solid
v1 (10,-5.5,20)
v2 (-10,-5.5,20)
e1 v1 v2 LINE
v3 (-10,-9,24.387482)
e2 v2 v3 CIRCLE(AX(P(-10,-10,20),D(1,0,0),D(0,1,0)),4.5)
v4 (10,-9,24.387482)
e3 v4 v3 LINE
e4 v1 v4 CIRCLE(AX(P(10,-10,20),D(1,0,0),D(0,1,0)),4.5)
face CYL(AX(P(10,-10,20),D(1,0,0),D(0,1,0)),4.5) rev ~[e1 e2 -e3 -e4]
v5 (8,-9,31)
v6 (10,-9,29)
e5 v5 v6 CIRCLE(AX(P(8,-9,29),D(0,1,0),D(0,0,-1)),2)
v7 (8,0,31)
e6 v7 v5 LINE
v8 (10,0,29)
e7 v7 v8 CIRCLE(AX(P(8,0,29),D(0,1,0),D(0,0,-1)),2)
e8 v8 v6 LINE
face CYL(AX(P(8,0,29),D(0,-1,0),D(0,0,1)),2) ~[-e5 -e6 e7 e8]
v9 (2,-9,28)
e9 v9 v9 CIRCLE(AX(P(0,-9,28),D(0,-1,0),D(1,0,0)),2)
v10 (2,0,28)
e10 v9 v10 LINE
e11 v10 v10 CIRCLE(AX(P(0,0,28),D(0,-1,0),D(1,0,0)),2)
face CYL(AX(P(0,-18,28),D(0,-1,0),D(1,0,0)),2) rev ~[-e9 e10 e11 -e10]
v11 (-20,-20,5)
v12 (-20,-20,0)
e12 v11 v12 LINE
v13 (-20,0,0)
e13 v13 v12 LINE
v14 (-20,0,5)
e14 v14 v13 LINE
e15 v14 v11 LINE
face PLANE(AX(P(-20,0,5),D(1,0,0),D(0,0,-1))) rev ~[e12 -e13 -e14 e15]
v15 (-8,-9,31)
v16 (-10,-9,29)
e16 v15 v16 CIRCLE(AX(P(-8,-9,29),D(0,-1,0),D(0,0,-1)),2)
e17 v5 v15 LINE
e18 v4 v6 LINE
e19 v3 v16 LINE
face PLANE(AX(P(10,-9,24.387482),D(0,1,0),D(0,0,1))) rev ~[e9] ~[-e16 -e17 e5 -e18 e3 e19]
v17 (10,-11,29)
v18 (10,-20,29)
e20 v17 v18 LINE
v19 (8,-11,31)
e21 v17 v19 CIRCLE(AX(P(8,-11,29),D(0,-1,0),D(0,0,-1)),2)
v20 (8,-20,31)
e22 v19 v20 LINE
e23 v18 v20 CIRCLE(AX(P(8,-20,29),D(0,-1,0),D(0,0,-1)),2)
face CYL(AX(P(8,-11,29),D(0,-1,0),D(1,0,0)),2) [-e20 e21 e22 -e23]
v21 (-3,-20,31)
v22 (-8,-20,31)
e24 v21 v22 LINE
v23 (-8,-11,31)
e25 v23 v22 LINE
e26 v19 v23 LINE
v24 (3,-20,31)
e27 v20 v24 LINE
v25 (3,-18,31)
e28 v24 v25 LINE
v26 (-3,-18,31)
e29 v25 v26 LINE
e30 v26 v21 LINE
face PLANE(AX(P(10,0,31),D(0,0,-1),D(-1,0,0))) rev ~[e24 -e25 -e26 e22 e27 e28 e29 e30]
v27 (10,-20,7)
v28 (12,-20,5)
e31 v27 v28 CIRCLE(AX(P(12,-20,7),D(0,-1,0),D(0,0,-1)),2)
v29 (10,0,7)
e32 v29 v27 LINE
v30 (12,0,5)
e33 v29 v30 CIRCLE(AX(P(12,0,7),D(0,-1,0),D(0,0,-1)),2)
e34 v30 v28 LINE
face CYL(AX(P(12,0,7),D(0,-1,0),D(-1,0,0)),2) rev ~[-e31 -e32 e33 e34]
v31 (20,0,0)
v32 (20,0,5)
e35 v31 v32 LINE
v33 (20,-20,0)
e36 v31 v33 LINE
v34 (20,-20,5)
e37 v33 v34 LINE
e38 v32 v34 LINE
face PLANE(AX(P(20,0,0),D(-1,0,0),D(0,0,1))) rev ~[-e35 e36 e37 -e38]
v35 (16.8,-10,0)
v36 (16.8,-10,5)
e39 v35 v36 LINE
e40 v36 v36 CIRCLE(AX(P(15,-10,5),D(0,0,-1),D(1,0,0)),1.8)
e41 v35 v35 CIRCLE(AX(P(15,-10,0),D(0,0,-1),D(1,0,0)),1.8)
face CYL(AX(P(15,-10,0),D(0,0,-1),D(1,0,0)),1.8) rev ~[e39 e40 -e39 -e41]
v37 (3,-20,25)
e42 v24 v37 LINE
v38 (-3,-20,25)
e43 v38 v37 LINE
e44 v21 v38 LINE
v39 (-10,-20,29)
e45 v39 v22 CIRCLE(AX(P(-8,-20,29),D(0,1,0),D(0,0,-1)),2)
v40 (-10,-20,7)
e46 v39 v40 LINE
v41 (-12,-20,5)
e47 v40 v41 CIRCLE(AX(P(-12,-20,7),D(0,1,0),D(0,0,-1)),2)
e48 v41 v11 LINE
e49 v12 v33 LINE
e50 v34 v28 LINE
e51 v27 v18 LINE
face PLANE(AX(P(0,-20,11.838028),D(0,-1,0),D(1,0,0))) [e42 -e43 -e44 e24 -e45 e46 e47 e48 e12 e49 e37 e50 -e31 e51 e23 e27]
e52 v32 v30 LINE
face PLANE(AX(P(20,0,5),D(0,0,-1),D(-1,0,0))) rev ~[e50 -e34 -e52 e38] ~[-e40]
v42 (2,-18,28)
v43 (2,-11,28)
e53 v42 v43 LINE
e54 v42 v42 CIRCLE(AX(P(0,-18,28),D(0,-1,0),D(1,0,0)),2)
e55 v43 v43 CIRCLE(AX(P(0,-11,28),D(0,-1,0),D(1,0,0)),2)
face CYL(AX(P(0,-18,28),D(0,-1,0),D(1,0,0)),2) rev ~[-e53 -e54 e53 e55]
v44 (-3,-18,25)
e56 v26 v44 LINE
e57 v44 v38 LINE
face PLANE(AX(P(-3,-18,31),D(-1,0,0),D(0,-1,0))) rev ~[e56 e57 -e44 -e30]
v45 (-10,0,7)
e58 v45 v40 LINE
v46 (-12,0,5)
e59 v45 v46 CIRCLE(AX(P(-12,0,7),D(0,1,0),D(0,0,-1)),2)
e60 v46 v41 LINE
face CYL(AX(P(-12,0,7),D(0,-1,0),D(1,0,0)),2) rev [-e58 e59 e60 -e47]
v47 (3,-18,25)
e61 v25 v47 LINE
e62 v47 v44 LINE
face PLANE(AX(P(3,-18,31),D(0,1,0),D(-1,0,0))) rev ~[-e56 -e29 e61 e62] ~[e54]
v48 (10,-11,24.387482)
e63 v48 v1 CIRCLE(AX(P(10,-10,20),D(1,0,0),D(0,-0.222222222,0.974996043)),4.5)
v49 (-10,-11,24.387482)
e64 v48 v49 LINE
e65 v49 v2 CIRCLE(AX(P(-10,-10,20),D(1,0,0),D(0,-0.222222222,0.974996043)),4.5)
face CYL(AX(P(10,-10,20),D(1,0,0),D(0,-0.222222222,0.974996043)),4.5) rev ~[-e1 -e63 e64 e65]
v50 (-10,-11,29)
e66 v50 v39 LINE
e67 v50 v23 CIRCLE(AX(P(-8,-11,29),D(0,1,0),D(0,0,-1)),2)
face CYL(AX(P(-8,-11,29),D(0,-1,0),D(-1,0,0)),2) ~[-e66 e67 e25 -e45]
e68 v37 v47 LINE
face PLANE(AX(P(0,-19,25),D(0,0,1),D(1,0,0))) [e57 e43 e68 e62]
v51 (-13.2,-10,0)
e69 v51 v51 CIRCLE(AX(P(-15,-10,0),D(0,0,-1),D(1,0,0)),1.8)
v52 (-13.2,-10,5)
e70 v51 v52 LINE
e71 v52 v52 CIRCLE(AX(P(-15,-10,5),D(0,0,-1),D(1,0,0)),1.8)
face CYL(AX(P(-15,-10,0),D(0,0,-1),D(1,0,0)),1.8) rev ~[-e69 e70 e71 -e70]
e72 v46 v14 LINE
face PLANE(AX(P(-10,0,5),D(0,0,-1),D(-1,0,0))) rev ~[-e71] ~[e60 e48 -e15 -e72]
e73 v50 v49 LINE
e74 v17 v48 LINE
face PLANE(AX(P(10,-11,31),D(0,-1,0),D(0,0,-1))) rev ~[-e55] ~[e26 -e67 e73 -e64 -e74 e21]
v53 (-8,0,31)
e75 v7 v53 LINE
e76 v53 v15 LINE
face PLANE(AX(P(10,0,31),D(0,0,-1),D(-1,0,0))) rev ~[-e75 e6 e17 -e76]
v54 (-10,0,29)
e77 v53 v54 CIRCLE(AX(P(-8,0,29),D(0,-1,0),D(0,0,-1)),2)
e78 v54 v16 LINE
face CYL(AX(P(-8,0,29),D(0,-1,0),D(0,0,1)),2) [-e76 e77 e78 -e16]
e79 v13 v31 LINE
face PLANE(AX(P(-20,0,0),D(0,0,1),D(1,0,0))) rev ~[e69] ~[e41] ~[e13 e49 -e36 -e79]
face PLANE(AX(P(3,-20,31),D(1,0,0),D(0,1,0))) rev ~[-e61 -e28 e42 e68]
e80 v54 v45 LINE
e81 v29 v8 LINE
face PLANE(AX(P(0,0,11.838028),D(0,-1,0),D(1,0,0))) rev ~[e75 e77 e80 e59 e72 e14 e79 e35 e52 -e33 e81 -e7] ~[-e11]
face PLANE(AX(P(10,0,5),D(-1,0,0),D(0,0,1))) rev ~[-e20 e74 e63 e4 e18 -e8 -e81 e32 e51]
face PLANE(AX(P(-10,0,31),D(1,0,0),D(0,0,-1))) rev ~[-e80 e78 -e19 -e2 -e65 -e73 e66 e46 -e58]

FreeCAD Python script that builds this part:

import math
import FreeCAD as App
import Part
import Sketcher

V = App.Vector
Q = App.Units.Quantity


def edges_at(feature, points):
    """Names of the edges that pass closest to the given points."""
    edges = feature.Shape.Edges
    near = lambda p: min(range(len(edges)), key=lambda i: edges[i].distToShape(Part.Vertex(*p))[0])
    return sorted({f"Edge{near(p) + 1}" for p in points})


def add_polygon(sketch, points):
    """Adds a closed chain of lines whose ends are joined by coincident constraints."""
    first, n = sketch.GeometryCount, len(points)
    for a, b in zip(points, points[1:] + points[:1]):
        sketch.addGeometry(Part.LineSegment(App.Vector(*a, 0), App.Vector(*b, 0)), False)
    for i in range(n):
        sketch.addConstraint(Sketcher.Constraint("Coincident", first + i, 2, first + (i + 1) % n, 1))

doc = App.newDocument("Part")
body = doc.addObject("PartDesign::Body", "Body")

# Sketch on XZ plane
sketch1 = body.newObject("Sketcher::SketchObject", "Sketch")
sketch1.AttachmentSupport = (doc.getObject("XZ_Plane"), [""])
sketch1.MapMode = "FlatFace"
add_polygon(sketch1, [(10, 31), (-10, 31), (-10, 5), (-20, 5), (-20, 0), (20, 0), (20, 5), (10, 5)])  # lines 0-7
sketch1.addConstraint([
    Sketcher.Constraint("Horizontal", 0),
    Sketcher.Constraint("Vertical", 1),
    Sketcher.Constraint("Horizontal", 2),
    Sketcher.Constraint("Vertical", 3),
    Sketcher.Constraint("Horizontal", 4),
    Sketcher.Constraint("Vertical", 5),
    Sketcher.Constraint("Horizontal", 6),
    Sketcher.Constraint("Vertical", 7),
    Sketcher.Constraint("Symmetric", 3, 2, 4, 2, -1, 1),
    Sketcher.Constraint("Symmetric", 1, 2, 6, 2, -2),
    Sketcher.Constraint("DistanceX", 0, 2, 0, 1, Q("20 mm")),
    Sketcher.Constraint("DistanceX", 2, 2, 2, 1, Q("10 mm")),
    Sketcher.Constraint("DistanceY", 1, 2, 1, 1, Q("26 mm")),
    Sketcher.Constraint("DistanceY", 3, 2, 3, 1, Q("5 mm")),
])
pad1 = body.newObject("PartDesign::Pad", "Pad")
pad1.Profile = sketch1
pad1.Length = 20

# Sketch on XY plane
sketch2 = body.newObject("Sketcher::SketchObject", "Sketch001")
sketch2.AttachmentSupport = (doc.getObject("XY_Plane"), [""])
sketch2.MapMode = "FlatFace"
sketch2.addGeometry([
    Part.Circle(V(-15, -10, 0), V(0, 0, 1), 1.8),
    Part.Circle(V(15, -10, 0), V(0, 0, 1), 1.8),
], False)
sketch2.addConstraint([
    Sketcher.Constraint("Equal", 0, 1),
    Sketcher.Constraint("Symmetric", 0, 3, 1, 3, -2),
    Sketcher.Constraint("Diameter", 0, Q("3.6 mm")),
    Sketcher.Constraint("DistanceX", 0, 3, -1, 1, Q("15 mm")),
    Sketcher.Constraint("DistanceY", 0, 3, -1, 1, Q("10 mm")),
])
pocket1 = body.newObject("PartDesign::Pocket", "Pocket")
pocket1.Profile = sketch2
pocket1.Length = 25
pocket1.Reversed = True

# Sketch on YZ plane
sketch3 = body.newObject("Sketcher::SketchObject", "Sketch002")
sketch3.AttachmentSupport = (doc.getObject("YZ_Plane"), [""])
sketch3.MapMode = "FlatFace"
sketch3.AttachmentOffset = App.Placement(V(0, 0, 10), App.Rotation())
sketch3.addGeometry([
    Part.ArcOfCircle(Part.Circle(V(-10, 20, 0), V(0, 0, 1), 4.5), math.radians(103), math.radians(360)),  # 0
    Part.ArcOfCircle(Part.Circle(V(-10, 20, 0), V(0, 0, 1), 4.5), math.radians(0), math.radians(77)),  # 1
    Part.LineSegment(V(-9, 24.4, 0), V(-9, 31, 0)),  # 2
    Part.LineSegment(V(-9, 31, 0), V(-11, 31, 0)),  # 3
    Part.LineSegment(V(-11, 31, 0), V(-11, 24.4, 0)),  # 4
], False)
sketch3.addConstraint([
    Sketcher.Constraint("Tangent", 0, 2, 1, 1),
    Sketcher.Constraint("Coincident", 1, 2, 2, 1),
    Sketcher.Constraint("Coincident", 2, 2, 3, 1),
    Sketcher.Constraint("Coincident", 3, 2, 4, 1),
    Sketcher.Constraint("Coincident", 4, 2, 0, 1),
    Sketcher.Constraint("Vertical", 2),
    Sketcher.Constraint("Horizontal", 3),
    Sketcher.Constraint("Vertical", 4),
    Sketcher.Constraint("Equal", 0, 1),
    Sketcher.Constraint("Horizontal", 1, 3, 0, 2),
    Sketcher.Constraint("Horizontal", 1, 2, 4, 2),
    Sketcher.Constraint("Radius", 0, Q("4.5 mm")),
    Sketcher.Constraint("DistanceX", 3, 2, 3, 1, Q("2 mm")),
    Sketcher.Constraint("DistanceX", 0, 3, -1, 1, Q("10 mm")),
    Sketcher.Constraint("DistanceY", -1, 1, 0, 3, Q("20 mm")),
    Sketcher.Constraint("DistanceY", -1, 1, 2, 2, Q("31 mm")),
])
pocket2 = body.newObject("PartDesign::Pocket", "Pocket001")
pocket2.Profile = sketch3
pocket2.Length = 25

# Sketch on XY plane
sketch4 = body.newObject("Sketcher::SketchObject", "Sketch003")
sketch4.AttachmentSupport = (doc.getObject("XY_Plane"), [""])
sketch4.MapMode = "FlatFace"
sketch4.AttachmentOffset = App.Placement(V(0, 0, 31), App.Rotation())
add_polygon(sketch4, [(-3, -18), (-3, -20), (3, -20), (3, -18)])  # lines 0-3
sketch4.addConstraint([
    Sketcher.Constraint("Vertical", 0),
    Sketcher.Constraint("Horizontal", 1),
    Sketcher.Constraint("Vertical", 2),
    Sketcher.Constraint("Horizontal", 3),
    Sketcher.Constraint("DistanceX", 1, 1, 1, 2, Q("6 mm")),
    Sketcher.Constraint("DistanceY", 0, 2, 0, 1, Q("2 mm")),
    Sketcher.Constraint("DistanceX", 0, 2, -1, 1, Q("3 mm")),
    Sketcher.Constraint("DistanceY", 0, 2, -1, 1, Q("20 mm")),
])
pocket3 = body.newObject("PartDesign::Pocket", "Pocket002")
pocket3.Profile = sketch4
pocket3.Length = 6

# Sketch on XZ plane
sketch5 = body.newObject("Sketcher::SketchObject", "Sketch004")
sketch5.AttachmentSupport = (doc.getObject("XZ_Plane"), [""])
sketch5.MapMode = "FlatFace"
sketch5.AttachmentOffset = App.Placement(V(0, 0, 18), App.Rotation())
sketch5.addGeometry(Part.Circle(V(0, 28, 0), V(0, 0, 1), 2), False)
sketch5.addConstraint([
    Sketcher.Constraint("PointOnObject", 0, 3, -2),
    Sketcher.Constraint("Diameter", 0, Q("4 mm")),
    Sketcher.Constraint("DistanceY", -1, 1, 0, 3, Q("28 mm")),
])
pocket4 = body.newObject("PartDesign::Pocket", "Pocket003")
pocket4.Profile = sketch5
pocket4.Length = 25
doc.recompute()

fillet = body.newObject("PartDesign::Fillet", "Fillet")
fillet.Base = (pocket4, edges_at(pocket4, [
    (10, -15.5, 31),
    (10, -4.5, 31),
    (-10, -4.5, 31),
    (-10, -15.5, 31),
    (10, -10, 5),
    (-10, -10, 5),
]))
fillet.Radius = 2

doc.recompute()
